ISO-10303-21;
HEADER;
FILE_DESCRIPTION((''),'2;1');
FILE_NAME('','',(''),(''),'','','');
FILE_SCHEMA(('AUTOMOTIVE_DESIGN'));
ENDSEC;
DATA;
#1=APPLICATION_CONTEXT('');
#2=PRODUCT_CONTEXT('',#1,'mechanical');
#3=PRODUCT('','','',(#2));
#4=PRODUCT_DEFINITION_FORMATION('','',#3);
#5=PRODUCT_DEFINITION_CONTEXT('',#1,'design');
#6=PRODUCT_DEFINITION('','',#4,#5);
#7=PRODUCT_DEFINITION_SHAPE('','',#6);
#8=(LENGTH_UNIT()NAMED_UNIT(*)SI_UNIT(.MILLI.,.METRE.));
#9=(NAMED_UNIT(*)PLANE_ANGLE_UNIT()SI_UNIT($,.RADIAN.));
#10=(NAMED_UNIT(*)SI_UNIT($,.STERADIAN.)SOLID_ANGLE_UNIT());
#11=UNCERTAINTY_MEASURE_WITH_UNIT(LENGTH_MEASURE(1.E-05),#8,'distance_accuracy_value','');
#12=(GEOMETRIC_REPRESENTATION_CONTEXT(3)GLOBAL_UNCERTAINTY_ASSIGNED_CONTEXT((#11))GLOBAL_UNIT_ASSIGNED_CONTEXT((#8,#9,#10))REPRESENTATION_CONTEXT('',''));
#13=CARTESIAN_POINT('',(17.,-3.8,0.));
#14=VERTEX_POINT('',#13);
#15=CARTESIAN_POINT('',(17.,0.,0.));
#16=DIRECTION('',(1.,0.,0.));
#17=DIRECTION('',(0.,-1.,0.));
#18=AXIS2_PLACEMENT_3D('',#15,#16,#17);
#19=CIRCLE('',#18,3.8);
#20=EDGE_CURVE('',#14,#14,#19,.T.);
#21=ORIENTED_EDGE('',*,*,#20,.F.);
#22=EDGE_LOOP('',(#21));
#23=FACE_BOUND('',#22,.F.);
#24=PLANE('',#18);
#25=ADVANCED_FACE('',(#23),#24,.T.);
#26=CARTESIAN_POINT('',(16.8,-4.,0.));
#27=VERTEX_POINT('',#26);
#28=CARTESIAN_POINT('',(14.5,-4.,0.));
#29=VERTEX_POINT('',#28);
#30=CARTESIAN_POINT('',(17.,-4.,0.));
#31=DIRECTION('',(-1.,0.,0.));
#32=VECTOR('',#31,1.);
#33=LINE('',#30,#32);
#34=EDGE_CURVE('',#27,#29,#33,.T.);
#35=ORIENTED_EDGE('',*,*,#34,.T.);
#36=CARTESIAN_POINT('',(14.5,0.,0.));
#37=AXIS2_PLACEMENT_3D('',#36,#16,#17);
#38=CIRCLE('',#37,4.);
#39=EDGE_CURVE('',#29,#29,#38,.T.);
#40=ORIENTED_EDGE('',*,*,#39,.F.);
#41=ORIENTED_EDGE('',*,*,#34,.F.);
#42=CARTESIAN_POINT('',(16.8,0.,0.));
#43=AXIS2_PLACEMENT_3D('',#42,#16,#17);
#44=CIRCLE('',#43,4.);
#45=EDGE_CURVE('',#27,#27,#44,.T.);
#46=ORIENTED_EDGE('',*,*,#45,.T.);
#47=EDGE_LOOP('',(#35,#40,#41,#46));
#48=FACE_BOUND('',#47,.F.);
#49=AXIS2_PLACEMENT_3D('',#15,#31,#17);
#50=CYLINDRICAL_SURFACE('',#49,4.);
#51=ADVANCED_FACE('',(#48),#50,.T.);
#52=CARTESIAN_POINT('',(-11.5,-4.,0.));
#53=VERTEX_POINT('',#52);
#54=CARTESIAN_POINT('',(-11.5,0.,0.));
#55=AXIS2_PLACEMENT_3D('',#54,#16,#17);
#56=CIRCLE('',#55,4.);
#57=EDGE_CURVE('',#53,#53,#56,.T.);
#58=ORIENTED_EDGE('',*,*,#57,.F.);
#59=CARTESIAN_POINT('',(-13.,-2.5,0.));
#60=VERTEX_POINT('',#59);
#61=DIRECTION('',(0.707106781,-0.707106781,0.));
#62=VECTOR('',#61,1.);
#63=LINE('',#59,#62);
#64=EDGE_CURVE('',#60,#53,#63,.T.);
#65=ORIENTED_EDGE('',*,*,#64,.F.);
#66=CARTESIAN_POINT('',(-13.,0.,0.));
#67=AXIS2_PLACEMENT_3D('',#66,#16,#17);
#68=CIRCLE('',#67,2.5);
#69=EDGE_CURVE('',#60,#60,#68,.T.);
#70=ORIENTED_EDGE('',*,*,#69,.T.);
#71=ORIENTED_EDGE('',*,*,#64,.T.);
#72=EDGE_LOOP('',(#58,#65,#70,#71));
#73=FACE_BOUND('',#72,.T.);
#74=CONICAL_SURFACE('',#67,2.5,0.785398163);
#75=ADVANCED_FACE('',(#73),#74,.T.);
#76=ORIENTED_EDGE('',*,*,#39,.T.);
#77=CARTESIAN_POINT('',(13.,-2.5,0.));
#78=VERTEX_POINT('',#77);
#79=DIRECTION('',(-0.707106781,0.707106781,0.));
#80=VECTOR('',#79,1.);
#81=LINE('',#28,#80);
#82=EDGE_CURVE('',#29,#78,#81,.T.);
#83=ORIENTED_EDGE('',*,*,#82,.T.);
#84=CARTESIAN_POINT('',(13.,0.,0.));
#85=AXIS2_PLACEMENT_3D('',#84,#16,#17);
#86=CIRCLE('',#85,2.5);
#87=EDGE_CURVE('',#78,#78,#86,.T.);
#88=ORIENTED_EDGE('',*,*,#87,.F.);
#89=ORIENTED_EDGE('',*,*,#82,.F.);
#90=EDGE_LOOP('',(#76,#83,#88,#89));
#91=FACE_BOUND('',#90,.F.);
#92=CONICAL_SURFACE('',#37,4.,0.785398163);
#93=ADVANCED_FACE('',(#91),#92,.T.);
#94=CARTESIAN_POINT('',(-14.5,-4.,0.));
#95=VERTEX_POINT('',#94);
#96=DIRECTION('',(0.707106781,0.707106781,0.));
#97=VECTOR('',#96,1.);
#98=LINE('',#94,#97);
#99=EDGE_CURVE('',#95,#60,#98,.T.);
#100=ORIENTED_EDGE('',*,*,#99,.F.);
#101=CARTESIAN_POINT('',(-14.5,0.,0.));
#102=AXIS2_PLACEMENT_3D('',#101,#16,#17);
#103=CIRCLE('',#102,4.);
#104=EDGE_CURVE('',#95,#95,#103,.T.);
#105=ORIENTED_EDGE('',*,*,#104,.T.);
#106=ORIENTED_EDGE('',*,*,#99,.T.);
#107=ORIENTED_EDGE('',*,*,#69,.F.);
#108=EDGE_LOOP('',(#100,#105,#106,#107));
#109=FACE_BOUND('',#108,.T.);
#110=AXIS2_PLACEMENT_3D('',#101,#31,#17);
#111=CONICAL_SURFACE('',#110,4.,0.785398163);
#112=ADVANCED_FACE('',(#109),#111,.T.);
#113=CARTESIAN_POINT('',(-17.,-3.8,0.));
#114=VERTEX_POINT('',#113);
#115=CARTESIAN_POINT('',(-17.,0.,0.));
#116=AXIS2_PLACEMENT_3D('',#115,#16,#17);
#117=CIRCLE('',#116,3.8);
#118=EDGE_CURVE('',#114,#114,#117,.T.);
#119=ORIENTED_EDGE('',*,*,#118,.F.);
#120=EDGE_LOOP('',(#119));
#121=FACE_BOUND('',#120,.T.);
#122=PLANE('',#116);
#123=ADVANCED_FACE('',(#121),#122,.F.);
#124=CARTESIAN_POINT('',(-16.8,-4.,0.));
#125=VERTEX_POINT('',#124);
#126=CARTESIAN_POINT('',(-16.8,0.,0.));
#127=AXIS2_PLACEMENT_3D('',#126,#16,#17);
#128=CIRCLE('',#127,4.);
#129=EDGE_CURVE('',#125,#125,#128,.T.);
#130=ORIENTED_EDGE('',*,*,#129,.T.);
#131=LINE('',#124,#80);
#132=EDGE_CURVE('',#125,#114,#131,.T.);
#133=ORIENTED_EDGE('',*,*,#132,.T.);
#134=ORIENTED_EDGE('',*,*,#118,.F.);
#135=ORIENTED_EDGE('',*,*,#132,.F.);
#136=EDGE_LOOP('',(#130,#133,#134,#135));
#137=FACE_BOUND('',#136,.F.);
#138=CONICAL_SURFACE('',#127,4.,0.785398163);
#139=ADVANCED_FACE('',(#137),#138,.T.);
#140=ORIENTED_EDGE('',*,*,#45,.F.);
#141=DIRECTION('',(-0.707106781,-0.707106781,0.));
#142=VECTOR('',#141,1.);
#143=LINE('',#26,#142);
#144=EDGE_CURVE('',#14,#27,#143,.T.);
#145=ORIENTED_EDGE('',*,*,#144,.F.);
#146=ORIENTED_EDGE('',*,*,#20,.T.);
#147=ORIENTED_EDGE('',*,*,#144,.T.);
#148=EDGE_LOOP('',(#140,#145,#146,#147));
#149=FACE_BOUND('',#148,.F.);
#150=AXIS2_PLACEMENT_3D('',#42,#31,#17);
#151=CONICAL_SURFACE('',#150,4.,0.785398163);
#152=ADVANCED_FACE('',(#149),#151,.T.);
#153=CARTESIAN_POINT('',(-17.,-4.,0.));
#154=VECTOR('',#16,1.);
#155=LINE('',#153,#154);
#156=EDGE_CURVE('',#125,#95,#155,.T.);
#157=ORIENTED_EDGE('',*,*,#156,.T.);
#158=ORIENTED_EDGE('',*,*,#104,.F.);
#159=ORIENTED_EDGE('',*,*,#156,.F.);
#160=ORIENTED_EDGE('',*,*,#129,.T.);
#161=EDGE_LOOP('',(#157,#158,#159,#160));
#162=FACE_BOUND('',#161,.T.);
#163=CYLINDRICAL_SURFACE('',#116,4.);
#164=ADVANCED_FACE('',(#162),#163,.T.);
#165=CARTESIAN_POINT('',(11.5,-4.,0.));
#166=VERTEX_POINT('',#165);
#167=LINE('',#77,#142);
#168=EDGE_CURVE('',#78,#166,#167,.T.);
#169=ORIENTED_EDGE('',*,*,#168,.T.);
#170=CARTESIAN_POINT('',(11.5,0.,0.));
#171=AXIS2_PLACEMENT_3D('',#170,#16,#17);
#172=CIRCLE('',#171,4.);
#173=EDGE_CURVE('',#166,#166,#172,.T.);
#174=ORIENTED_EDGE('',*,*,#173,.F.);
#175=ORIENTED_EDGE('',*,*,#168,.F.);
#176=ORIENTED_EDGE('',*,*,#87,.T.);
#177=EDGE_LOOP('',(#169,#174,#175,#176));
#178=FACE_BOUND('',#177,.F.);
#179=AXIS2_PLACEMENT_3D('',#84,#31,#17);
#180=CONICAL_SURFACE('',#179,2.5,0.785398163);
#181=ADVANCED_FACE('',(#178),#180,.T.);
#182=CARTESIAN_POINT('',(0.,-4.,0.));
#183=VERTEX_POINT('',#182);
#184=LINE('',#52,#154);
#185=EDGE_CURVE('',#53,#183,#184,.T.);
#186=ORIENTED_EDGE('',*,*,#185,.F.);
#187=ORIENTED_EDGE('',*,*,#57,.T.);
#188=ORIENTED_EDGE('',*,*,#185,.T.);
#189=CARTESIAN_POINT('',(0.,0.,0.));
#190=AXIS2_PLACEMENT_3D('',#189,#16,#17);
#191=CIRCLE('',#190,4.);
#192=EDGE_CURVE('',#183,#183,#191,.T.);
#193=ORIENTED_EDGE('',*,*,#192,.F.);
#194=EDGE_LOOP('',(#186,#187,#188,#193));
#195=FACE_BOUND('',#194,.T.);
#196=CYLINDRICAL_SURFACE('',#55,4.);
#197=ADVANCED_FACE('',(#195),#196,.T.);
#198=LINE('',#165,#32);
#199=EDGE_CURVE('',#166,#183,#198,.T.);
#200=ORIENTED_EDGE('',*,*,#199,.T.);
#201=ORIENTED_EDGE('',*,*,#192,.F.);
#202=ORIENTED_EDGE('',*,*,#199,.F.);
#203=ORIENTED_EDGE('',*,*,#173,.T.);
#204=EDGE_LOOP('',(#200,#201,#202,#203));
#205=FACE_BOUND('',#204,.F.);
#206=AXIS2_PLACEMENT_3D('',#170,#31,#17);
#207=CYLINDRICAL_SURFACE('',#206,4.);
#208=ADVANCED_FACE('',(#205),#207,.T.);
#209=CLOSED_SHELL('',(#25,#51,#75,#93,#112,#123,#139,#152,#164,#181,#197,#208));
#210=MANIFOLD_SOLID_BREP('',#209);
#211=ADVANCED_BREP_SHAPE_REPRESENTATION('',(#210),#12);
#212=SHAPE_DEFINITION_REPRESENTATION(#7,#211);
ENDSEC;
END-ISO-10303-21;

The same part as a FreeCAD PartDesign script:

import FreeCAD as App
import Part
import Sketcher
Q = App.Units.Quantity


def edges_at(feature, points):
    """Names of the edges that pass closest to the given points."""
    edges = feature.Shape.Edges
    near = lambda p: min(range(len(edges)), key=lambda i: edges[i].distToShape(Part.Vertex(*p))[0])
    return sorted({f"Edge{near(p) + 1}" for p in points})

doc = App.newDocument("Part")
body = doc.addObject("PartDesign::Body", "Body")

sketch1 = body.newObject("Sketcher::SketchObject", "Sketch")
sketch1.AttachmentSupport = (doc.getObject("XY_Plane"), [""])
sketch1.MapMode = "FlatFace"
sketch1.addGeometry([
    Part.LineSegment(App.Vector(17, 0, 0), App.Vector(-17, 0, 0)),
    Part.LineSegment(App.Vector(-17, 0, 0), App.Vector(-17, -4, 0)),
    Part.LineSegment(App.Vector(-17, -4, 0), App.Vector(-14.5, -4, 0)),
    Part.LineSegment(App.Vector(-14.5, -4, 0), App.Vector(-13, -2.5, 0)),
    Part.LineSegment(App.Vector(-13, -2.5, 0), App.Vector(-11.5, -4, 0)),
    Part.LineSegment(App.Vector(-11.5, -4, 0), App.Vector(11.5, -4, 0)),
    Part.LineSegment(App.Vector(11.5, -4, 0), App.Vector(13, -2.5, 0)),
    Part.LineSegment(App.Vector(13, -2.5, 0), App.Vector(14.5, -4, 0)),
    Part.LineSegment(App.Vector(14.5, -4, 0), App.Vector(17, -4, 0)),
    Part.LineSegment(App.Vector(17, -4, 0), App.Vector(17, 0, 0)),
], False)
sketch1.addConstraint([
    Sketcher.Constraint("Coincident", 0, 2, 1, 1),
    Sketcher.Constraint("Coincident", 1, 2, 2, 1),
    Sketcher.Constraint("Coincident", 2, 2, 3, 1),
    Sketcher.Constraint("Coincident", 3, 2, 4, 1),
    Sketcher.Constraint("Coincident", 4, 2, 5, 1),
    Sketcher.Constraint("Coincident", 5, 2, 6, 1),
    Sketcher.Constraint("Coincident", 6, 2, 7, 1),
    Sketcher.Constraint("Coincident", 7, 2, 8, 1),
    Sketcher.Constraint("Coincident", 8, 2, 9, 1),
    Sketcher.Constraint("Coincident", 9, 2, 0, 1),
    Sketcher.Constraint("Horizontal", 0),
    Sketcher.Constraint("Vertical", 1),
    Sketcher.Constraint("Horizontal", 2),
    Sketcher.Constraint("Horizontal", 5),
    Sketcher.Constraint("Horizontal", 8),
    Sketcher.Constraint("Vertical", 9),
    Sketcher.Constraint("Symmetric", 0, 2, 9, 2, -1, 1),
    Sketcher.Constraint("Symmetric", 3, 2, 6, 2, -2),
    Sketcher.Constraint("Symmetric", 2, 2, 7, 2, -2),
    Sketcher.Constraint("Perpendicular", 3, 4),
    Sketcher.Constraint("Perpendicular", 4, 6),
    Sketcher.Constraint("Perpendicular", 6, 7),
    Sketcher.Constraint("Horizontal", 2, 2, 4, 2),
    Sketcher.Constraint("DistanceX", 0, 2, 0, 1, Q("34 mm")),
    Sketcher.Constraint("DistanceY", 1, 2, 1, 1, Q("4 mm")),
    Sketcher.Constraint("DistanceX", 1, 2, 3, 2, Q("4 mm")),
    Sketcher.Constraint("DistanceX", 2, 2, 4, 2, Q("3 mm")),
])
revolution = body.newObject("PartDesign::Revolution", "Revolution")
revolution.Profile = sketch1
revolution.ReferenceAxis = (sketch1, ["H_Axis"])
revolution.Angle = 360
doc.recompute()

chamfer = body.newObject("PartDesign::Chamfer", "Chamfer")
chamfer.Base = (revolution, edges_at(revolution, [(-17, 4, 0), (17, 4, 0)]))
chamfer.Size = 0.2

doc.recompute()
